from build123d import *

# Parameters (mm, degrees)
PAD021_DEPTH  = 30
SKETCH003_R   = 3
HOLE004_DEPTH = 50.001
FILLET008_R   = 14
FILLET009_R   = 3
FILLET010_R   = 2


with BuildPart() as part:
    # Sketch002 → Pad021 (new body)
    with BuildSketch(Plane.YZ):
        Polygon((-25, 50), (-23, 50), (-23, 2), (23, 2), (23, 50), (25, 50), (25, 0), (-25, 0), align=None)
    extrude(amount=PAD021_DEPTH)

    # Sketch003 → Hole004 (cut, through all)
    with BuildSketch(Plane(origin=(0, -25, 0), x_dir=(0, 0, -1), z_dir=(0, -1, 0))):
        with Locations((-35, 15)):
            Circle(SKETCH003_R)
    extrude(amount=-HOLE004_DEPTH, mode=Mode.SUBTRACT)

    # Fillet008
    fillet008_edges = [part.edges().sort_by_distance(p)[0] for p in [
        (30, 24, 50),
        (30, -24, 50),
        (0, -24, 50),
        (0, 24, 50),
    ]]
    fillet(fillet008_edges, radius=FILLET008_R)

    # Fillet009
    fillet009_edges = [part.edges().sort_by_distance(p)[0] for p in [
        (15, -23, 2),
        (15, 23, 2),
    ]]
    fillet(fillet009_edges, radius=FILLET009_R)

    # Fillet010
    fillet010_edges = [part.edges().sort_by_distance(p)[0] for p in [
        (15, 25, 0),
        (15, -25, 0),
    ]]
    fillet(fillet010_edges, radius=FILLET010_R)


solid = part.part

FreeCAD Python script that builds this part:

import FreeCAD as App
import Part
import Sketcher

V = App.Vector
Q = App.Units.Quantity


def edges_at(feature, points):
    """Names of the edges that pass closest to the given points."""
    edges = feature.Shape.Edges
    near = lambda p: min(range(len(edges)), key=lambda i: edges[i].distToShape(Part.Vertex(*p))[0])
    return sorted({f"Edge{near(p) + 1}" for p in points})

doc = App.newDocument("Part")
params = doc.addObject("Spreadsheet::Sheet", "Params")
for row, (alias, value) in enumerate([
    ("sketch1_width", "2 mm"),
    ("sketch1_width2", "50 mm"),
    ("sketch1_height", "48 mm"),
    ("pad1_length", "30 mm"),
    ("sketch2_diameter", "6 mm"),
    ("fillet_radius", "14 mm"),
    ("fillet2_radius", "3 mm"),
    ("fillet3_radius", "2 mm"),
], start=1):
    params.set(f"A{row}", alias)
    params.set(f"B{row}", "=" + value)
    params.setAlias(f"B{row}", alias)

body = doc.addObject("PartDesign::Body", "Body")

# Sketch on YZ plane
sketch1 = body.newObject("Sketcher::SketchObject", "Sketch")
sketch1.AttachmentSupport = (doc.getObject("YZ_Plane"), [""])
sketch1.MapMode = "FlatFace"
sketch1.addGeometry(Part.LineSegment(V(-23, 50, 0), V(-25, 50, 0)), False)
sketch1.addGeometry(Part.LineSegment(V(-25, 50, 0), V(-25, 0, 0)), False)
sketch1.addGeometry(Part.LineSegment(V(-25, 0, 0), V(25, 0, 0)), False)
sketch1.addGeometry(Part.LineSegment(V(25, 0, 0), V(25, 50, 0)), False)
sketch1.addGeometry(Part.LineSegment(V(25, 50, 0), V(23, 50, 0)), False)
sketch1.addGeometry(Part.LineSegment(V(23, 50, 0), V(23, 2, 0)), False)
sketch1.addGeometry(Part.LineSegment(V(23, 2, 0), V(-23, 2, 0)), False)
sketch1.addGeometry(Part.LineSegment(V(-23, 2, 0), V(-23, 50, 0)), False)
sketch1.addConstraint(Sketcher.Constraint("Coincident", 0, 2, 1, 1))
sketch1.addConstraint(Sketcher.Constraint("Coincident", 1, 2, 2, 1))
sketch1.addConstraint(Sketcher.Constraint("Coincident", 2, 2, 3, 1))
sketch1.addConstraint(Sketcher.Constraint("Coincident", 3, 2, 4, 1))
sketch1.addConstraint(Sketcher.Constraint("Coincident", 4, 2, 5, 1))
sketch1.addConstraint(Sketcher.Constraint("Coincident", 5, 2, 6, 1))
sketch1.addConstraint(Sketcher.Constraint("Coincident", 6, 2, 7, 1))
sketch1.addConstraint(Sketcher.Constraint("Coincident", 7, 2, 0, 1))
sketch1.addConstraint(Sketcher.Constraint("Horizontal", 0))
sketch1.addConstraint(Sketcher.Constraint("Vertical", 1))
sketch1.addConstraint(Sketcher.Constraint("Horizontal", 2))
sketch1.addConstraint(Sketcher.Constraint("Vertical", 3))
sketch1.addConstraint(Sketcher.Constraint("Horizontal", 4))
sketch1.addConstraint(Sketcher.Constraint("Vertical", 5))
sketch1.addConstraint(Sketcher.Constraint("Horizontal", 6))
sketch1.addConstraint(Sketcher.Constraint("Vertical", 7))
sketch1.addConstraint(Sketcher.Constraint("Symmetric", 1, 2, 2, 2, -1, 1))
sketch1.addConstraint(Sketcher.Constraint("Symmetric", 4, 2, 7, 2, -2))
sketch1.addConstraint(Sketcher.Constraint("Equal", 2, 1))
sketch1.addConstraint(Sketcher.Constraint("DistanceX", 0, 2, 0, 1, Q("2 mm")))
sketch1.addConstraint(Sketcher.Constraint("DistanceX", 2, 1, 2, 2, Q("50 mm")))
sketch1.addConstraint(Sketcher.Constraint("DistanceY", 5, 2, 5, 1, Q("48 mm")))
sketch1.setExpression("Constraints[19]", "Params.sketch1_width")
sketch1.setExpression("Constraints[20]", "Params.sketch1_width2")
sketch1.setExpression("Constraints[21]", "Params.sketch1_height")
pad1 = body.newObject("PartDesign::Pad", "Pad")
pad1.Profile = sketch1
pad1.setExpression("Length", "Params.pad1_length")

# Sketch on XZ plane
sketch2 = body.newObject("Sketcher::SketchObject", "Sketch001")
sketch2.AttachmentSupport = (doc.getObject("XZ_Plane"), [""])
sketch2.MapMode = "FlatFace"
sketch2.AttachmentOffset = App.Placement(V(0, 0, 25), App.Rotation())
sketch2.addGeometry(Part.Circle(V(15, 35, 0), V(0, 0, 1), 3), False)
sketch2.addConstraint(Sketcher.Constraint("Diameter", 0, Q("6 mm")))
sketch2.addConstraint(Sketcher.Constraint("DistanceX", -1, 1, 0, 3, Q("15 mm")))
sketch2.addConstraint(Sketcher.Constraint("DistanceY", -1, 1, 0, 3, Q("35 mm")))
sketch2.setExpression("Constraints[0]", "Params.sketch2_diameter")
pocket1 = body.newObject("PartDesign::Pocket", "Pocket")
pocket1.Profile = sketch2
pocket1.Type = "ThroughAll"
doc.recompute()

fillet = body.newObject("PartDesign::Fillet", "Fillet")
fillet.Base = (pocket1, edges_at(pocket1, [
    (30, 24, 50),
    (30, -24, 50),
    (0, -24, 50),
    (0, 24, 50),
]))
fillet.setExpression("Radius", "Params.fillet_radius")
doc.recompute()

fillet2 = body.newObject("PartDesign::Fillet", "Fillet001")
fillet2.Base = (fillet, edges_at(fillet, [(15, -23, 2), (15, 23, 2)]))
fillet2.setExpression("Radius", "Params.fillet2_radius")
doc.recompute()

fillet3 = body.newObject("PartDesign::Fillet", "Fillet002")
fillet3.Base = (fillet2, edges_at(fillet2, [(15, 25, 0), (15, -25, 0)]))
fillet3.setExpression("Radius", "Params.fillet3_radius")

doc.recompute()
